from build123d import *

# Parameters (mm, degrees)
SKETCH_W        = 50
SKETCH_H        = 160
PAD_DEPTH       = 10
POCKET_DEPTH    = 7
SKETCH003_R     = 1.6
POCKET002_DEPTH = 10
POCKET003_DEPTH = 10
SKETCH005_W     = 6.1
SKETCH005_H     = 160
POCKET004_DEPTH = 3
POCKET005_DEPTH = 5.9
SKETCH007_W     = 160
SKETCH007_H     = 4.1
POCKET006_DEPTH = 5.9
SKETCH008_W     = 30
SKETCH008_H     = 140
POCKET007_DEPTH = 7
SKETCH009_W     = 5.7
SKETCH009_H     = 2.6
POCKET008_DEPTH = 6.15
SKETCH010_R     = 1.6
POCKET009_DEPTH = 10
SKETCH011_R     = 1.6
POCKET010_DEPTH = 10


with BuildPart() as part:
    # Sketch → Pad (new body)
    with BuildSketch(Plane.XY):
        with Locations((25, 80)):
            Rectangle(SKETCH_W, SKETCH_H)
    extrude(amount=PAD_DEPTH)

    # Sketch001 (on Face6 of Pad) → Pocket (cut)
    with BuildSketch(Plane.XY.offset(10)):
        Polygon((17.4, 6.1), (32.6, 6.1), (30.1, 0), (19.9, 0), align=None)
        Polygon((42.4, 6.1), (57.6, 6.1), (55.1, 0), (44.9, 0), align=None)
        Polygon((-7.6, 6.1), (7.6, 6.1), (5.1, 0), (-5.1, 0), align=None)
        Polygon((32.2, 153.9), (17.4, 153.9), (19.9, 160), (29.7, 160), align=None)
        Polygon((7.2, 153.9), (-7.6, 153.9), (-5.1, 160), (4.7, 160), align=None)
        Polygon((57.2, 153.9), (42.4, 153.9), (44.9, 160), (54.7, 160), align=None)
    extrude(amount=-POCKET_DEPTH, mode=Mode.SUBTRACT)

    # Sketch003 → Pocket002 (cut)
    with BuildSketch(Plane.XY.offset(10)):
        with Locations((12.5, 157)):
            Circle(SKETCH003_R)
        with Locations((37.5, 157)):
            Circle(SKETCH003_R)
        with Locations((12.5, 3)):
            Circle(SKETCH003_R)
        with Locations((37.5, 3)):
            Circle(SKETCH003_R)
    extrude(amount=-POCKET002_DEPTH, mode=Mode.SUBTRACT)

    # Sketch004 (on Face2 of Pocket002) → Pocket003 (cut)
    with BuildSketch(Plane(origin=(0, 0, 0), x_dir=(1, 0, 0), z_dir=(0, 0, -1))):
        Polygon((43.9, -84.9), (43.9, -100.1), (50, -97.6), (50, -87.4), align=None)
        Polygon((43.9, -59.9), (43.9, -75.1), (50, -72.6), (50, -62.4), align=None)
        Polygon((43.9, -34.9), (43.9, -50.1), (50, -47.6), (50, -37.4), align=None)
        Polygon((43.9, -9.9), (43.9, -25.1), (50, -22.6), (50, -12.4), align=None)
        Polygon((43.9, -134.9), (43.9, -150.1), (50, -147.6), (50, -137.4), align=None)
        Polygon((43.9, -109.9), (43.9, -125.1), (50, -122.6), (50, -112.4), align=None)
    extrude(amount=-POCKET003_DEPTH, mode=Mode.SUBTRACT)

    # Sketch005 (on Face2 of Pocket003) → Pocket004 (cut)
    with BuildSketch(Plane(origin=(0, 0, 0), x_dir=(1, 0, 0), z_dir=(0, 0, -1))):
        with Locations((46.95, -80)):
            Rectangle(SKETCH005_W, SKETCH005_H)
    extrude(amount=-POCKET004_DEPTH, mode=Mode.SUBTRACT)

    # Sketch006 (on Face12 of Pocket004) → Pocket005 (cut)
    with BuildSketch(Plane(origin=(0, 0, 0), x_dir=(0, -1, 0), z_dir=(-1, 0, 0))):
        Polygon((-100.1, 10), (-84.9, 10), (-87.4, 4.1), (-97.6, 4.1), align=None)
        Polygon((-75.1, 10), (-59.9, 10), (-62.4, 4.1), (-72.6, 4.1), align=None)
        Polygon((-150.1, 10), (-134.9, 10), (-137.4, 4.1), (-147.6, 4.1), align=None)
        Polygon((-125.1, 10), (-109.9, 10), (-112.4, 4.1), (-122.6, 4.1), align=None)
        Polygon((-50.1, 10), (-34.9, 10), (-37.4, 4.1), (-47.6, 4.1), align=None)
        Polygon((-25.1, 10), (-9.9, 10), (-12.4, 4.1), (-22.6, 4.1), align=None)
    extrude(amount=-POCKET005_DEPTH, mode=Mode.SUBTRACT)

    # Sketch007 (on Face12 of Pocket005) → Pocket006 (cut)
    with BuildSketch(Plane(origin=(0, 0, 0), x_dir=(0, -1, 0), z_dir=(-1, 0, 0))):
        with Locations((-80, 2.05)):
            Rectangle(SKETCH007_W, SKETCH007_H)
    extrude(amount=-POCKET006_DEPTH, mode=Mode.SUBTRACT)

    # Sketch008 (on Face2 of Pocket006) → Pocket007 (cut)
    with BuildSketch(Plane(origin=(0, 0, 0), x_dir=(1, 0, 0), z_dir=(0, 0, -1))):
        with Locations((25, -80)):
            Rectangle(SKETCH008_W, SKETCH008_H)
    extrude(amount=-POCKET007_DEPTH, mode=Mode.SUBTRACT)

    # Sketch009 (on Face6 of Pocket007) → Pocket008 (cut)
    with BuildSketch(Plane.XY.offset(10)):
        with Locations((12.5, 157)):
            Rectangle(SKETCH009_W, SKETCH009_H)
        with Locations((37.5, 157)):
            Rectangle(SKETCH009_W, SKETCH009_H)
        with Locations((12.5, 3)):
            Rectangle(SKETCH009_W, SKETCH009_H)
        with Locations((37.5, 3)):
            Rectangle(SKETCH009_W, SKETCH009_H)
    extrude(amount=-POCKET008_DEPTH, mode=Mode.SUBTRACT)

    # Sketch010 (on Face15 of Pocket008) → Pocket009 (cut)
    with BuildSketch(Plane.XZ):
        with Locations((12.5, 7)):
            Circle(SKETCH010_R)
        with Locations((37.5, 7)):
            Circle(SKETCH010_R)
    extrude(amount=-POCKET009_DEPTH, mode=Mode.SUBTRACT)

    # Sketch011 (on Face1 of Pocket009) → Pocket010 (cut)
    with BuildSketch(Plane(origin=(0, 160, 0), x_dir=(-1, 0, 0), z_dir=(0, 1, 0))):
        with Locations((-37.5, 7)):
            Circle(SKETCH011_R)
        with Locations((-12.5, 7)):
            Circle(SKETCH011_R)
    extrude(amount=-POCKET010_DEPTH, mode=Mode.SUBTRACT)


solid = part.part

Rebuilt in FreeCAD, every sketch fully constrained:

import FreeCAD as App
import Part
import Sketcher
from FreeCAD import Vector
Q = App.Units.Quantity


def add_polygon(sketch, points):
    """Adds a closed chain of lines whose ends are joined by coincident constraints."""
    first, n = sketch.GeometryCount, len(points)
    for a, b in zip(points, points[1:] + points[:1]):
        sketch.addGeometry(Part.LineSegment(App.Vector(*a, 0), App.Vector(*b, 0)), False)
    for i in range(n):
        sketch.addConstraint(Sketcher.Constraint("Coincident", first + i, 2, first + (i + 1) % n, 1))

doc = App.newDocument("Part")
body = doc.addObject("PartDesign::Body", "Body")

# Sketch on XY plane
sketch1 = body.newObject("Sketcher::SketchObject", "Sketch")
sketch1.AttachmentSupport = (doc.getObject("XY_Plane"), [""])
sketch1.MapMode = "FlatFace"
add_polygon(sketch1, [(0, 160), (0, 0), (50, 0), (50, 160)])  # lines 0-3
sketch1.addConstraint(Sketcher.Constraint("Vertical", 0))
sketch1.addConstraint(Sketcher.Constraint("Horizontal", 1))
sketch1.addConstraint(Sketcher.Constraint("Vertical", 2))
sketch1.addConstraint(Sketcher.Constraint("Horizontal", 3))
sketch1.addConstraint(Sketcher.Constraint("Coincident", 0, 2, -1, 1))
sketch1.addConstraint(Sketcher.Constraint("DistanceX", 1, 1, 1, 2, Q("50 mm")))
sketch1.addConstraint(Sketcher.Constraint("DistanceY", 0, 2, 0, 1, Q("160 mm")))
pad1 = body.newObject("PartDesign::Pad", "Pad")
pad1.Profile = sketch1
pad1.Length = 10

# Sketch on XY plane
sketch2 = body.newObject("Sketcher::SketchObject", "Sketch001")
sketch2.AttachmentSupport = (doc.getObject("XY_Plane"), [""])
sketch2.MapMode = "FlatFace"
sketch2.AttachmentOffset = App.Placement(Vector(0, 0, 10), App.Rotation())
add_polygon(sketch2, [(32.6, 6.1), (17.4, 6.1), (19.9, 0), (30.1, 0)])  # lines 0-3
add_polygon(sketch2, [(57.6, 6.1), (42.4, 6.1), (44.9, 0), (55.1, 0)])  # lines 4-7
add_polygon(sketch2, [(7.6, 6.1), (-7.6, 6.1), (-5.1, 0), (5.1, 0)])  # lines 8-11
add_polygon(sketch2, [(17.4, 153.9), (32.2, 153.9), (29.7, 160), (19.9, 160)])  # lines 12-15
add_polygon(sketch2, [(-7.6, 153.9), (7.2, 153.9), (4.7, 160), (-5.1, 160)])  # lines 16-19
add_polygon(sketch2, [(42.4, 153.9), (57.2, 153.9), (54.7, 160), (44.9, 160)])  # lines 20-23
sketch2.addConstraint(Sketcher.Constraint("Horizontal", 0))
sketch2.addConstraint(Sketcher.Constraint("Horizontal", 2))
sketch2.addConstraint(Sketcher.Constraint("Horizontal", 4))
sketch2.addConstraint(Sketcher.Constraint("Horizontal", 6))
sketch2.addConstraint(Sketcher.Constraint("Horizontal", 8))
sketch2.addConstraint(Sketcher.Constraint("Horizontal", 10))
sketch2.addConstraint(Sketcher.Constraint("Horizontal", 12))
sketch2.addConstraint(Sketcher.Constraint("Horizontal", 14))
sketch2.addConstraint(Sketcher.Constraint("Horizontal", 16))
sketch2.addConstraint(Sketcher.Constraint("Horizontal", 18))
sketch2.addConstraint(Sketcher.Constraint("Horizontal", 20))
sketch2.addConstraint(Sketcher.Constraint("Horizontal", 22))
sketch2.addConstraint(Sketcher.Constraint("Symmetric", 9, 2, 10, 2, -1, 1))
sketch2.addConstraint(Sketcher.Constraint("PointOnObject", 1, 2, -1))
sketch2.addConstraint(Sketcher.Constraint("PointOnObject", 5, 2, -1))
sketch2.addConstraint(Sketcher.Constraint("Parallel", 1, 5))
sketch2.addConstraint(Sketcher.Constraint("Parallel", 3, 7))
sketch2.addConstraint(Sketcher.Constraint("Parallel", 5, 9))
sketch2.addConstraint(Sketcher.Constraint("Parallel", 7, 11))
sketch2.addConstraint(Sketcher.Constraint("Parallel", 9, 13))
sketch2.addConstraint(Sketcher.Constraint("Parallel", 11, 15))
sketch2.addConstraint(Sketcher.Constraint("Parallel", 13, 17))
sketch2.addConstraint(Sketcher.Constraint("Parallel", 15, 19))
sketch2.addConstraint(Sketcher.Constraint("Parallel", 17, 21))
sketch2.addConstraint(Sketcher.Constraint("Parallel", 19, 23))
sketch2.addConstraint(Sketcher.Constraint("Horizontal", 3, 2, 4, 2))
sketch2.addConstraint(Sketcher.Constraint("Horizontal", 7, 2, 8, 2))
sketch2.addConstraint(Sketcher.Constraint("Horizontal", 15, 2, 16, 2))
sketch2.addConstraint(Sketcher.Constraint("Horizontal", 14, 2, 17, 2))
sketch2.addConstraint(Sketcher.Constraint("Horizontal", 19, 2, 20, 2))
sketch2.addConstraint(Sketcher.Constraint("Horizontal", 18, 2, 21, 2))
sketch2.addConstraint(Sketcher.Constraint("Vertical", 1, 2, 14, 2))
sketch2.addConstraint(Sketcher.Constraint("Vertical", 0, 2, 15, 2))
sketch2.addConstraint(Sketcher.Constraint("Vertical", 9, 2, 18, 2))
sketch2.addConstraint(Sketcher.Constraint("Vertical", 5, 2, 22, 2))
sketch2.addConstraint(Sketcher.Constraint("Equal", 0, 4))
sketch2.addConstraint(Sketcher.Constraint("Equal", 4, 8))
sketch2.addConstraint(Sketcher.Constraint("Equal", 12, 16))
sketch2.addConstraint(Sketcher.Constraint("Equal", 16, 20))
sketch2.addConstraint(Sketcher.Constraint("Equal", 1, 3))
sketch2.addConstraint(Sketcher.Constraint("DistanceX", 0, 2, 0, 1, Q("15.2 mm")))
sketch2.addConstraint(Sketcher.Constraint("DistanceX", 2, 1, 2, 2, Q("10.2 mm")))
sketch2.addConstraint(Sketcher.Constraint("DistanceX", 12, 1, 12, 2, Q("14.8 mm")))
sketch2.addConstraint(Sketcher.Constraint("DistanceY", -1, 1, 13, 2, Q("160 mm")))
sketch2.addConstraint(Sketcher.Constraint("DistanceX", 0, 2, 4, 2, Q("25 mm")))
sketch2.addConstraint(Sketcher.Constraint("DistanceX", 8, 2, 0, 2, Q("25 mm")))
sketch2.addConstraint(Sketcher.Constraint("DistanceY", -1, 1, 0, 2, Q("6.1 mm")))
pocket1 = body.newObject("PartDesign::Pocket", "Pocket")
pocket1.Profile = sketch2
pocket1.Length = 7

# Sketch on XY plane
sketch3 = body.newObject("Sketcher::SketchObject", "Sketch002")
sketch3.AttachmentSupport = (doc.getObject("XY_Plane"), [""])
sketch3.MapMode = "FlatFace"
sketch3.AttachmentOffset = App.Placement(Vector(0, 0, 10), App.Rotation())
sketch3.addGeometry(Part.Circle(Vector(12.5, 157, 0), Vector(0, 0, 1), 1.6), False)
sketch3.addGeometry(Part.Circle(Vector(37.5, 157, 0), Vector(0, 0, 1), 1.6), False)
sketch3.addGeometry(Part.Circle(Vector(12.5, 3, 0), Vector(0, 0, 1), 1.6), False)
sketch3.addGeometry(Part.Circle(Vector(37.5, 3, 0), Vector(0, 0, 1), 1.6), False)
sketch3.addConstraint(Sketcher.Constraint("Equal", 0, 1))
sketch3.addConstraint(Sketcher.Constraint("Equal", 1, 2))
sketch3.addConstraint(Sketcher.Constraint("Equal", 2, 3))
sketch3.addConstraint(Sketcher.Constraint("Horizontal", 0, 3, 1, 3))
sketch3.addConstraint(Sketcher.Constraint("Horizontal", 2, 3, 3, 3))
sketch3.addConstraint(Sketcher.Constraint("Vertical", 0, 3, 2, 3))
sketch3.addConstraint(Sketcher.Constraint("Vertical", 1, 3, 3, 3))
sketch3.addConstraint(Sketcher.Constraint("Diameter", 0, Q("3.2 mm")))
sketch3.addConstraint(Sketcher.Constraint("DistanceY", -1, 1, 0, 3, Q("157 mm")))
sketch3.addConstraint(Sketcher.Constraint("DistanceY", -1, 1, 2, 3, Q("3 mm")))
sketch3.addConstraint(Sketcher.Constraint("DistanceX", 0, 3, 1, 3, Q("25 mm")))
sketch3.addConstraint(Sketcher.Constraint("DistanceX", -1, 1, 0, 3, Q("12.5 mm")))
pocket2 = body.newObject("PartDesign::Pocket", "Pocket001")
pocket2.Profile = sketch3
pocket2.Length = 10

# Sketch on XY plane
sketch4 = body.newObject("Sketcher::SketchObject", "Sketch003")
sketch4.AttachmentSupport = (doc.getObject("XY_Plane"), [""])
sketch4.MapMode = "FlatFace"
add_polygon(sketch4, [(43.9, 84.9), (43.9, 100.1), (50, 97.6), (50, 87.4)])  # lines 0-3
add_polygon(sketch4, [(43.9, 59.9), (43.9, 75.1), (50, 72.6), (50, 62.4)])  # lines 4-7
add_polygon(sketch4, [(43.9, 34.9), (43.9, 50.1), (50, 47.6), (50, 37.4)])  # lines 8-11
add_polygon(sketch4, [(43.9, 9.9), (43.9, 25.1), (50, 22.6), (50, 12.4)])  # lines 12-15
add_polygon(sketch4, [(43.9, 134.9), (43.9, 150.1), (50, 147.6), (50, 137.4)])  # lines 16-19
add_polygon(sketch4, [(43.9, 109.9), (43.9, 125.1), (50, 122.6), (50, 112.4)])  # lines 20-23
sketch4.addConstraint(Sketcher.Constraint("Vertical", 0))
sketch4.addConstraint(Sketcher.Constraint("Vertical", 2))
sketch4.addConstraint(Sketcher.Constraint("Vertical", 4))
sketch4.addConstraint(Sketcher.Constraint("Vertical", 6))
sketch4.addConstraint(Sketcher.Constraint("Vertical", 8))
sketch4.addConstraint(Sketcher.Constraint("Vertical", 10))
sketch4.addConstraint(Sketcher.Constraint("Vertical", 12))
sketch4.addConstraint(Sketcher.Constraint("Vertical", 14))
sketch4.addConstraint(Sketcher.Constraint("Vertical", 16))
sketch4.addConstraint(Sketcher.Constraint("Vertical", 18))
sketch4.addConstraint(Sketcher.Constraint("Vertical", 20))
sketch4.addConstraint(Sketcher.Constraint("Vertical", 22))
sketch4.addConstraint(Sketcher.Constraint("Parallel", 1, 5))
sketch4.addConstraint(Sketcher.Constraint("Parallel", 3, 7))
sketch4.addConstraint(Sketcher.Constraint("Parallel", 5, 9))
sketch4.addConstraint(Sketcher.Constraint("Parallel", 7, 11))
sketch4.addConstraint(Sketcher.Constraint("Parallel", 9, 13))
sketch4.addConstraint(Sketcher.Constraint("Parallel", 11, 15))
sketch4.addConstraint(Sketcher.Constraint("Parallel", 13, 17))
sketch4.addConstraint(Sketcher.Constraint("Parallel", 15, 19))
sketch4.addConstraint(Sketcher.Constraint("Parallel", 17, 21))
sketch4.addConstraint(Sketcher.Constraint("Parallel", 19, 23))
sketch4.addConstraint(Sketcher.Constraint("Vertical", 3, 2, 4, 2))
sketch4.addConstraint(Sketcher.Constraint("Vertical", 2, 2, 5, 2))
sketch4.addConstraint(Sketcher.Constraint("Vertical", 7, 2, 8, 2))
sketch4.addConstraint(Sketcher.Constraint("Vertical", 6, 2, 9, 2))
sketch4.addConstraint(Sketcher.Constraint("Vertical", 11, 2, 12, 2))
sketch4.addConstraint(Sketcher.Constraint("Vertical", 10, 2, 13, 2))
sketch4.addConstraint(Sketcher.Constraint("Vertical", 15, 2, 16, 2))
sketch4.addConstraint(Sketcher.Constraint("Vertical", 14, 2, 17, 2))
sketch4.addConstraint(Sketcher.Constraint("Vertical", 19, 2, 20, 2))
sketch4.addConstraint(Sketcher.Constraint("Vertical", 18, 2, 21, 2))
sketch4.addConstraint(Sketcher.Constraint("Equal", 0, 4))
sketch4.addConstraint(Sketcher.Constraint("Equal", 4, 8))
sketch4.addConstraint(Sketcher.Constraint("Equal", 8, 12))
sketch4.addConstraint(Sketcher.Constraint("Equal", 12, 16))
sketch4.addConstraint(Sketcher.Constraint("Equal", 16, 20))
sketch4.addConstraint(Sketcher.Constraint("Equal", 1, 3))
sketch4.addConstraint(Sketcher.Constraint("DistanceY", 0, 1, 0, 2, Q("15.2 mm")))
sketch4.addConstraint(Sketcher.Constraint("DistanceY", 2, 2, 2, 1, Q("10.2 mm")))
sketch4.addConstraint(Sketcher.Constraint("DistanceX", -1, 1, 1, 2, Q("50 mm")))
sketch4.addConstraint(Sketcher.Constraint("DistanceY", 4, 2, 0, 2, Q("25 mm")))
sketch4.addConstraint(Sketcher.Constraint("DistanceY", 8, 2, 4, 2, Q("25 mm")))
sketch4.addConstraint(Sketcher.Constraint("DistanceY", 12, 2, 8, 2, Q("25 mm")))
sketch4.addConstraint(Sketcher.Constraint("DistanceY", 0, 2, 16, 2, Q("50 mm")))
sketch4.addConstraint(Sketcher.Constraint("DistanceY", 0, 2, 20, 2, Q("25 mm")))
sketch4.addConstraint(Sketcher.Constraint("DistanceX", -1, 1, 0, 2, Q("43.9 mm")))
sketch4.addConstraint(Sketcher.Constraint("DistanceY", -1, 1, 0, 2, Q("100.1 mm")))
pocket3 = body.newObject("PartDesign::Pocket", "Pocket002")
pocket3.Profile = sketch4
pocket3.Length = 10
pocket3.Reversed = True

# Sketch on XY plane
sketch5 = body.newObject("Sketcher::SketchObject", "Sketch004")
sketch5.AttachmentSupport = (doc.getObject("XY_Plane"), [""])
sketch5.MapMode = "FlatFace"
add_polygon(sketch5, [(43.9, 0), (43.9, 160), (50, 160), (50, 0)])  # lines 0-3
sketch5.addConstraint(Sketcher.Constraint("Vertical", 0))
sketch5.addConstraint(Sketcher.Constraint("Horizontal", 1))
sketch5.addConstraint(Sketcher.Constraint("Vertical", 2))
sketch5.addConstraint(Sketcher.Constraint("Horizontal", 3))
sketch5.addConstraint(Sketcher.Constraint("PointOnObject", 2, 2, -1))
sketch5.addConstraint(Sketcher.Constraint("DistanceY", 0, 1, 0, 2, Q("160 mm")))
sketch5.addConstraint(Sketcher.Constraint("DistanceX", 1, 1, 1, 2, Q("6.1 mm")))
sketch5.addConstraint(Sketcher.Constraint("DistanceX", -1, 1, 1, 2, Q("50 mm")))
pocket4 = body.newObject("PartDesign::Pocket", "Pocket003")
pocket4.Profile = sketch5
pocket4.Length = 3
pocket4.Reversed = True

# Sketch on YZ plane
sketch6 = body.newObject("Sketcher::SketchObject", "Sketch005")
sketch6.AttachmentSupport = (doc.getObject("YZ_Plane"), [""])
sketch6.MapMode = "FlatFace"
add_polygon(sketch6, [(84.9, 10), (100.1, 10), (97.6, 4.1), (87.4, 4.1)])  # lines 0-3
add_polygon(sketch6, [(59.9, 10), (75.1, 10), (72.6, 4.1), (62.4, 4.1)])  # lines 4-7
add_polygon(sketch6, [(134.9, 10), (150.1, 10), (147.6, 4.1), (137.4, 4.1)])  # lines 8-11
add_polygon(sketch6, [(109.9, 10), (125.1, 10), (122.6, 4.1), (112.4, 4.1)])  # lines 12-15
add_polygon(sketch6, [(34.9, 10), (50.1, 10), (47.6, 4.1), (37.4, 4.1)])  # lines 16-19
add_polygon(sketch6, [(9.9, 10), (25.1, 10), (22.6, 4.1), (12.4, 4.1)])  # lines 20-23
sketch6.addConstraint(Sketcher.Constraint("Horizontal", 0))
sketch6.addConstraint(Sketcher.Constraint("Horizontal", 2))
sketch6.addConstraint(Sketcher.Constraint("Horizontal", 4))
sketch6.addConstraint(Sketcher.Constraint("Horizontal", 6))
sketch6.addConstraint(Sketcher.Constraint("Horizontal", 8))
sketch6.addConstraint(Sketcher.Constraint("Horizontal", 10))
sketch6.addConstraint(Sketcher.Constraint("Horizontal", 12))
sketch6.addConstraint(Sketcher.Constraint("Horizontal", 14))
sketch6.addConstraint(Sketcher.Constraint("Horizontal", 16))
sketch6.addConstraint(Sketcher.Constraint("Horizontal", 18))
sketch6.addConstraint(Sketcher.Constraint("Horizontal", 20))
sketch6.addConstraint(Sketcher.Constraint("Horizontal", 22))
sketch6.addConstraint(Sketcher.Constraint("Parallel", 1, 5))
sketch6.addConstraint(Sketcher.Constraint("Parallel", 3, 7))
sketch6.addConstraint(Sketcher.Constraint("Parallel", 5, 9))
sketch6.addConstraint(Sketcher.Constraint("Parallel", 7, 11))
sketch6.addConstraint(Sketcher.Constraint("Parallel", 9, 13))
sketch6.addConstraint(Sketcher.Constraint("Parallel", 11, 15))
sketch6.addConstraint(Sketcher.Constraint("Parallel", 13, 17))
sketch6.addConstraint(Sketcher.Constraint("Parallel", 15, 19))
sketch6.addConstraint(Sketcher.Constraint("Parallel", 17, 21))
sketch6.addConstraint(Sketcher.Constraint("Parallel", 19, 23))
sketch6.addConstraint(Sketcher.Constraint("Horizontal", 3, 2, 4, 2))
sketch6.addConstraint(Sketcher.Constraint("Horizontal", 2, 2, 5, 2))
sketch6.addConstraint(Sketcher.Constraint("Horizontal", 7, 2, 8, 2))
sketch6.addConstraint(Sketcher.Constraint("Horizontal", 6, 2, 9, 2))
sketch6.addConstraint(Sketcher.Constraint("Horizontal", 11, 2, 12, 2))
sketch6.addConstraint(Sketcher.Constraint("Horizontal", 10, 2, 13, 2))
sketch6.addConstraint(Sketcher.Constraint("Horizontal", 15, 2, 16, 2))
sketch6.addConstraint(Sketcher.Constraint("Horizontal", 14, 2, 17, 2))
sketch6.addConstraint(Sketcher.Constraint("Horizontal", 19, 2, 20, 2))
sketch6.addConstraint(Sketcher.Constraint("Horizontal", 18, 2, 21, 2))
sketch6.addConstraint(Sketcher.Constraint("Equal", 0, 4))
sketch6.addConstraint(Sketcher.Constraint("Equal", 4, 8))
sketch6.addConstraint(Sketcher.Constraint("Equal", 8, 12))
sketch6.addConstraint(Sketcher.Constraint("Equal", 12, 16))
sketch6.addConstraint(Sketcher.Constraint("Equal", 16, 20))
sketch6.addConstraint(Sketcher.Constraint("Equal", 1, 3))
sketch6.addConstraint(Sketcher.Constraint("DistanceX", 0, 1, 0, 2, Q("15.2 mm")))
sketch6.addConstraint(Sketcher.Constraint("DistanceX", 2, 2, 2, 1, Q("10.2 mm")))
sketch6.addConstraint(Sketcher.Constraint("DistanceY", -1, 1, 0, 2, Q("10 mm")))
sketch6.addConstraint(Sketcher.Constraint("DistanceX", 4, 2, 0, 2, Q("25 mm")))
sketch6.addConstraint(Sketcher.Constraint("DistanceX", 0, 2, 8, 2, Q("50 mm")))
sketch6.addConstraint(Sketcher.Constraint("DistanceX", 0, 2, 12, 2, Q("25 mm")))
sketch6.addConstraint(Sketcher.Constraint("DistanceX", 16, 2, 4, 2, Q("25 mm")))
sketch6.addConstraint(Sketcher.Constraint("DistanceX", 20, 2, 16, 2, Q("25 mm")))
sketch6.addConstraint(Sketcher.Constraint("DistanceX", -1, 1, 0, 2, Q("100.1 mm")))
sketch6.addConstraint(Sketcher.Constraint("DistanceY", -1, 1, 1, 2, Q("4.1 mm")))
pocket5 = body.newObject("PartDesign::Pocket", "Pocket004")
pocket5.Profile = sketch6
pocket5.Length = 5.9
pocket5.Reversed = True

# Sketch on YZ plane
sketch7 = body.newObject("Sketcher::SketchObject", "Sketch006")
sketch7.AttachmentSupport = (doc.getObject("YZ_Plane"), [""])
sketch7.MapMode = "FlatFace"
add_polygon(sketch7, [(160, 4.1), (160, 0), (0, 0), (0, 4.1)])  # lines 0-3
sketch7.addConstraint(Sketcher.Constraint("Vertical", 0))
sketch7.addConstraint(Sketcher.Constraint("Horizontal", 1))
sketch7.addConstraint(Sketcher.Constraint("Vertical", 2))
sketch7.addConstraint(Sketcher.Constraint("Horizontal", 3))
sketch7.addConstraint(Sketcher.Constraint("Coincident", 1, 2, -1, 1))
sketch7.addConstraint(Sketcher.Constraint("DistanceX", 1, 2, 1, 1, Q("160 mm")))
sketch7.addConstraint(Sketcher.Constraint("DistanceY", 0, 2, 0, 1, Q("4.1 mm")))
pocket6 = body.newObject("PartDesign::Pocket", "Pocket005")
pocket6.Profile = sketch7
pocket6.Length = 5.9
pocket6.Reversed = True

# Sketch on XY plane
sketch8 = body.newObject("Sketcher::SketchObject", "Sketch007")
sketch8.AttachmentSupport = (doc.getObject("XY_Plane"), [""])
sketch8.MapMode = "FlatFace"
add_polygon(sketch8, [(10, 10), (10, 150), (40, 150), (40, 10)])  # lines 0-3
sketch8.addConstraint(Sketcher.Constraint("Vertical", 0))
sketch8.addConstraint(Sketcher.Constraint("Horizontal", 1))
sketch8.addConstraint(Sketcher.Constraint("Vertical", 2))
sketch8.addConstraint(Sketcher.Constraint("Horizontal", 3))
sketch8.addConstraint(Sketcher.Constraint("DistanceX", 1, 1, 1, 2, Q("30 mm")))
sketch8.addConstraint(Sketcher.Constraint("DistanceY", 0, 1, 0, 2, Q("140 mm")))
sketch8.addConstraint(Sketcher.Constraint("DistanceX", -1, 1, 0, 2, Q("10 mm")))
sketch8.addConstraint(Sketcher.Constraint("DistanceY", -1, 1, 0, 2, Q("150 mm")))
pocket7 = body.newObject("PartDesign::Pocket", "Pocket006")
pocket7.Profile = sketch8
pocket7.Length = 7
pocket7.Reversed = True

# Sketch on XY plane
sketch9 = body.newObject("Sketcher::SketchObject", "Sketch008")
sketch9.AttachmentSupport = (doc.getObject("XY_Plane"), [""])
sketch9.MapMode = "FlatFace"
sketch9.AttachmentOffset = App.Placement(Vector(0, 0, 10), App.Rotation())
add_polygon(sketch9, [(9.65, 158.3), (9.65, 155.7), (15.35, 155.7), (15.35, 158.3)])  # lines 0-3
add_polygon(sketch9, [(34.65, 158.3), (34.65, 155.7), (40.35, 155.7), (40.35, 158.3)])  # lines 4-7
add_polygon(sketch9, [(9.65, 4.3), (9.65, 1.7), (15.35, 1.7), (15.35, 4.3)])  # lines 8-11
add_polygon(sketch9, [(34.65, 4.3), (34.65, 1.7), (40.35, 1.7), (40.35, 4.3)])  # lines 12-15
sketch9.addConstraint(Sketcher.Constraint("Vertical", 0))
sketch9.addConstraint(Sketcher.Constraint("Horizontal", 1))
sketch9.addConstraint(Sketcher.Constraint("Vertical", 2))
sketch9.addConstraint(Sketcher.Constraint("Horizontal", 3))
sketch9.addConstraint(Sketcher.Constraint("Vertical", 4))
sketch9.addConstraint(Sketcher.Constraint("Horizontal", 5))
sketch9.addConstraint(Sketcher.Constraint("Vertical", 6))
sketch9.addConstraint(Sketcher.Constraint("Horizontal", 7))
sketch9.addConstraint(Sketcher.Constraint("Vertical", 8))
sketch9.addConstraint(Sketcher.Constraint("Horizontal", 9))
sketch9.addConstraint(Sketcher.Constraint("Vertical", 10))
sketch9.addConstraint(Sketcher.Constraint("Horizontal", 11))
sketch9.addConstraint(Sketcher.Constraint("Vertical", 12))
sketch9.addConstraint(Sketcher.Constraint("Horizontal", 13))
sketch9.addConstraint(Sketcher.Constraint("Vertical", 14))
sketch9.addConstraint(Sketcher.Constraint("Horizontal", 15))
sketch9.addConstraint(Sketcher.Constraint("Horizontal", 1, 2, 4, 2))
sketch9.addConstraint(Sketcher.Constraint("Horizontal", 3, 2, 6, 2))
sketch9.addConstraint(Sketcher.Constraint("Horizontal", 9, 2, 12, 2))
sketch9.addConstraint(Sketcher.Constraint("Horizontal", 11, 2, 14, 2))
sketch9.addConstraint(Sketcher.Constraint("Vertical", 3, 2, 8, 2))
sketch9.addConstraint(Sketcher.Constraint("Vertical", 2, 2, 9, 2))
sketch9.addConstraint(Sketcher.Constraint("Vertical", 7, 2, 12, 2))
sketch9.addConstraint(Sketcher.Constraint("Vertical", 6, 2, 13, 2))
sketch9.addConstraint(Sketcher.Constraint("Equal", 3, 5))
sketch9.addConstraint(Sketcher.Constraint("Equal", 6, 8))
sketch9.addConstraint(Sketcher.Constraint("DistanceX", 1, 1, 1, 2, Q("5.7 mm")))
sketch9.addConstraint(Sketcher.Constraint("DistanceY", 0, 2, 0, 1, Q("2.6 mm")))
sketch9.addConstraint(Sketcher.Constraint("DistanceX", 0, 2, 4, 2, Q("25 mm")))
sketch9.addConstraint(Sketcher.Constraint("DistanceY", 8, 2, 0, 2, Q("154 mm")))
sketch9.addConstraint(Sketcher.Constraint("DistanceY", -1, 1, 0, 2, Q("155.7 mm")))
sketch9.addConstraint(Sketcher.Constraint("DistanceX", -1, 1, 0, 2, Q("9.65 mm")))
pocket8 = body.newObject("PartDesign::Pocket", "Pocket007")
pocket8.Profile = sketch9
pocket8.Length = 6.15

# Sketch on XZ plane
sketch10 = body.newObject("Sketcher::SketchObject", "Sketch009")
sketch10.AttachmentSupport = (doc.getObject("XZ_Plane"), [""])
sketch10.MapMode = "FlatFace"
sketch10.addGeometry(Part.Circle(Vector(12.5, 7, 0), Vector(0, 0, 1), 1.6), False)
sketch10.addGeometry(Part.Circle(Vector(37.5, 7, 0), Vector(0, 0, 1), 1.6), False)
sketch10.addConstraint(Sketcher.Constraint("Equal", 0, 1))
sketch10.addConstraint(Sketcher.Constraint("Horizontal", 0, 3, 1, 3))
sketch10.addConstraint(Sketcher.Constraint("Diameter", 0, Q("3.2 mm")))
sketch10.addConstraint(Sketcher.Constraint("DistanceY", -1, 1, 0, 3, Q("7 mm")))
sketch10.addConstraint(Sketcher.Constraint("DistanceX", 0, 3, 1, 3, Q("25 mm")))
sketch10.addConstraint(Sketcher.Constraint("DistanceX", -1, 1, 0, 3, Q("12.5 mm")))
pocket9 = body.newObject("PartDesign::Pocket", "Pocket008")
pocket9.Profile = sketch10
pocket9.Length = 10

# Sketch on XZ plane
sketch11 = body.newObject("Sketcher::SketchObject", "Sketch010")
sketch11.AttachmentSupport = (doc.getObject("XZ_Plane"), [""])
sketch11.MapMode = "FlatFace"
sketch11.AttachmentOffset = App.Placement(Vector(0, 0, -160), App.Rotation())
sketch11.addGeometry(Part.Circle(Vector(37.5, 7, 0), Vector(0, 0, 1), 1.6), False)
sketch11.addGeometry(Part.Circle(Vector(12.5, 7, 0), Vector(0, 0, 1), 1.6), False)
sketch11.addConstraint(Sketcher.Constraint("Equal", 0, 1))
sketch11.addConstraint(Sketcher.Constraint("Horizontal", 0, 3, 1, 3))
sketch11.addConstraint(Sketcher.Constraint("Diameter", 0, Q("3.2 mm")))
sketch11.addConstraint(Sketcher.Constraint("DistanceY", -1, 1, 0, 3, Q("7 mm")))
sketch11.addConstraint(Sketcher.Constraint("DistanceX", 1, 3, 0, 3, Q("25 mm")))
sketch11.addConstraint(Sketcher.Constraint("DistanceX", -1, 1, 0, 3, Q("37.5 mm")))
pocket10 = body.newObject("PartDesign::Pocket", "Pocket009")
pocket10.Profile = sketch11
pocket10.Length = 10
pocket10.Reversed = True

doc.recompute()
